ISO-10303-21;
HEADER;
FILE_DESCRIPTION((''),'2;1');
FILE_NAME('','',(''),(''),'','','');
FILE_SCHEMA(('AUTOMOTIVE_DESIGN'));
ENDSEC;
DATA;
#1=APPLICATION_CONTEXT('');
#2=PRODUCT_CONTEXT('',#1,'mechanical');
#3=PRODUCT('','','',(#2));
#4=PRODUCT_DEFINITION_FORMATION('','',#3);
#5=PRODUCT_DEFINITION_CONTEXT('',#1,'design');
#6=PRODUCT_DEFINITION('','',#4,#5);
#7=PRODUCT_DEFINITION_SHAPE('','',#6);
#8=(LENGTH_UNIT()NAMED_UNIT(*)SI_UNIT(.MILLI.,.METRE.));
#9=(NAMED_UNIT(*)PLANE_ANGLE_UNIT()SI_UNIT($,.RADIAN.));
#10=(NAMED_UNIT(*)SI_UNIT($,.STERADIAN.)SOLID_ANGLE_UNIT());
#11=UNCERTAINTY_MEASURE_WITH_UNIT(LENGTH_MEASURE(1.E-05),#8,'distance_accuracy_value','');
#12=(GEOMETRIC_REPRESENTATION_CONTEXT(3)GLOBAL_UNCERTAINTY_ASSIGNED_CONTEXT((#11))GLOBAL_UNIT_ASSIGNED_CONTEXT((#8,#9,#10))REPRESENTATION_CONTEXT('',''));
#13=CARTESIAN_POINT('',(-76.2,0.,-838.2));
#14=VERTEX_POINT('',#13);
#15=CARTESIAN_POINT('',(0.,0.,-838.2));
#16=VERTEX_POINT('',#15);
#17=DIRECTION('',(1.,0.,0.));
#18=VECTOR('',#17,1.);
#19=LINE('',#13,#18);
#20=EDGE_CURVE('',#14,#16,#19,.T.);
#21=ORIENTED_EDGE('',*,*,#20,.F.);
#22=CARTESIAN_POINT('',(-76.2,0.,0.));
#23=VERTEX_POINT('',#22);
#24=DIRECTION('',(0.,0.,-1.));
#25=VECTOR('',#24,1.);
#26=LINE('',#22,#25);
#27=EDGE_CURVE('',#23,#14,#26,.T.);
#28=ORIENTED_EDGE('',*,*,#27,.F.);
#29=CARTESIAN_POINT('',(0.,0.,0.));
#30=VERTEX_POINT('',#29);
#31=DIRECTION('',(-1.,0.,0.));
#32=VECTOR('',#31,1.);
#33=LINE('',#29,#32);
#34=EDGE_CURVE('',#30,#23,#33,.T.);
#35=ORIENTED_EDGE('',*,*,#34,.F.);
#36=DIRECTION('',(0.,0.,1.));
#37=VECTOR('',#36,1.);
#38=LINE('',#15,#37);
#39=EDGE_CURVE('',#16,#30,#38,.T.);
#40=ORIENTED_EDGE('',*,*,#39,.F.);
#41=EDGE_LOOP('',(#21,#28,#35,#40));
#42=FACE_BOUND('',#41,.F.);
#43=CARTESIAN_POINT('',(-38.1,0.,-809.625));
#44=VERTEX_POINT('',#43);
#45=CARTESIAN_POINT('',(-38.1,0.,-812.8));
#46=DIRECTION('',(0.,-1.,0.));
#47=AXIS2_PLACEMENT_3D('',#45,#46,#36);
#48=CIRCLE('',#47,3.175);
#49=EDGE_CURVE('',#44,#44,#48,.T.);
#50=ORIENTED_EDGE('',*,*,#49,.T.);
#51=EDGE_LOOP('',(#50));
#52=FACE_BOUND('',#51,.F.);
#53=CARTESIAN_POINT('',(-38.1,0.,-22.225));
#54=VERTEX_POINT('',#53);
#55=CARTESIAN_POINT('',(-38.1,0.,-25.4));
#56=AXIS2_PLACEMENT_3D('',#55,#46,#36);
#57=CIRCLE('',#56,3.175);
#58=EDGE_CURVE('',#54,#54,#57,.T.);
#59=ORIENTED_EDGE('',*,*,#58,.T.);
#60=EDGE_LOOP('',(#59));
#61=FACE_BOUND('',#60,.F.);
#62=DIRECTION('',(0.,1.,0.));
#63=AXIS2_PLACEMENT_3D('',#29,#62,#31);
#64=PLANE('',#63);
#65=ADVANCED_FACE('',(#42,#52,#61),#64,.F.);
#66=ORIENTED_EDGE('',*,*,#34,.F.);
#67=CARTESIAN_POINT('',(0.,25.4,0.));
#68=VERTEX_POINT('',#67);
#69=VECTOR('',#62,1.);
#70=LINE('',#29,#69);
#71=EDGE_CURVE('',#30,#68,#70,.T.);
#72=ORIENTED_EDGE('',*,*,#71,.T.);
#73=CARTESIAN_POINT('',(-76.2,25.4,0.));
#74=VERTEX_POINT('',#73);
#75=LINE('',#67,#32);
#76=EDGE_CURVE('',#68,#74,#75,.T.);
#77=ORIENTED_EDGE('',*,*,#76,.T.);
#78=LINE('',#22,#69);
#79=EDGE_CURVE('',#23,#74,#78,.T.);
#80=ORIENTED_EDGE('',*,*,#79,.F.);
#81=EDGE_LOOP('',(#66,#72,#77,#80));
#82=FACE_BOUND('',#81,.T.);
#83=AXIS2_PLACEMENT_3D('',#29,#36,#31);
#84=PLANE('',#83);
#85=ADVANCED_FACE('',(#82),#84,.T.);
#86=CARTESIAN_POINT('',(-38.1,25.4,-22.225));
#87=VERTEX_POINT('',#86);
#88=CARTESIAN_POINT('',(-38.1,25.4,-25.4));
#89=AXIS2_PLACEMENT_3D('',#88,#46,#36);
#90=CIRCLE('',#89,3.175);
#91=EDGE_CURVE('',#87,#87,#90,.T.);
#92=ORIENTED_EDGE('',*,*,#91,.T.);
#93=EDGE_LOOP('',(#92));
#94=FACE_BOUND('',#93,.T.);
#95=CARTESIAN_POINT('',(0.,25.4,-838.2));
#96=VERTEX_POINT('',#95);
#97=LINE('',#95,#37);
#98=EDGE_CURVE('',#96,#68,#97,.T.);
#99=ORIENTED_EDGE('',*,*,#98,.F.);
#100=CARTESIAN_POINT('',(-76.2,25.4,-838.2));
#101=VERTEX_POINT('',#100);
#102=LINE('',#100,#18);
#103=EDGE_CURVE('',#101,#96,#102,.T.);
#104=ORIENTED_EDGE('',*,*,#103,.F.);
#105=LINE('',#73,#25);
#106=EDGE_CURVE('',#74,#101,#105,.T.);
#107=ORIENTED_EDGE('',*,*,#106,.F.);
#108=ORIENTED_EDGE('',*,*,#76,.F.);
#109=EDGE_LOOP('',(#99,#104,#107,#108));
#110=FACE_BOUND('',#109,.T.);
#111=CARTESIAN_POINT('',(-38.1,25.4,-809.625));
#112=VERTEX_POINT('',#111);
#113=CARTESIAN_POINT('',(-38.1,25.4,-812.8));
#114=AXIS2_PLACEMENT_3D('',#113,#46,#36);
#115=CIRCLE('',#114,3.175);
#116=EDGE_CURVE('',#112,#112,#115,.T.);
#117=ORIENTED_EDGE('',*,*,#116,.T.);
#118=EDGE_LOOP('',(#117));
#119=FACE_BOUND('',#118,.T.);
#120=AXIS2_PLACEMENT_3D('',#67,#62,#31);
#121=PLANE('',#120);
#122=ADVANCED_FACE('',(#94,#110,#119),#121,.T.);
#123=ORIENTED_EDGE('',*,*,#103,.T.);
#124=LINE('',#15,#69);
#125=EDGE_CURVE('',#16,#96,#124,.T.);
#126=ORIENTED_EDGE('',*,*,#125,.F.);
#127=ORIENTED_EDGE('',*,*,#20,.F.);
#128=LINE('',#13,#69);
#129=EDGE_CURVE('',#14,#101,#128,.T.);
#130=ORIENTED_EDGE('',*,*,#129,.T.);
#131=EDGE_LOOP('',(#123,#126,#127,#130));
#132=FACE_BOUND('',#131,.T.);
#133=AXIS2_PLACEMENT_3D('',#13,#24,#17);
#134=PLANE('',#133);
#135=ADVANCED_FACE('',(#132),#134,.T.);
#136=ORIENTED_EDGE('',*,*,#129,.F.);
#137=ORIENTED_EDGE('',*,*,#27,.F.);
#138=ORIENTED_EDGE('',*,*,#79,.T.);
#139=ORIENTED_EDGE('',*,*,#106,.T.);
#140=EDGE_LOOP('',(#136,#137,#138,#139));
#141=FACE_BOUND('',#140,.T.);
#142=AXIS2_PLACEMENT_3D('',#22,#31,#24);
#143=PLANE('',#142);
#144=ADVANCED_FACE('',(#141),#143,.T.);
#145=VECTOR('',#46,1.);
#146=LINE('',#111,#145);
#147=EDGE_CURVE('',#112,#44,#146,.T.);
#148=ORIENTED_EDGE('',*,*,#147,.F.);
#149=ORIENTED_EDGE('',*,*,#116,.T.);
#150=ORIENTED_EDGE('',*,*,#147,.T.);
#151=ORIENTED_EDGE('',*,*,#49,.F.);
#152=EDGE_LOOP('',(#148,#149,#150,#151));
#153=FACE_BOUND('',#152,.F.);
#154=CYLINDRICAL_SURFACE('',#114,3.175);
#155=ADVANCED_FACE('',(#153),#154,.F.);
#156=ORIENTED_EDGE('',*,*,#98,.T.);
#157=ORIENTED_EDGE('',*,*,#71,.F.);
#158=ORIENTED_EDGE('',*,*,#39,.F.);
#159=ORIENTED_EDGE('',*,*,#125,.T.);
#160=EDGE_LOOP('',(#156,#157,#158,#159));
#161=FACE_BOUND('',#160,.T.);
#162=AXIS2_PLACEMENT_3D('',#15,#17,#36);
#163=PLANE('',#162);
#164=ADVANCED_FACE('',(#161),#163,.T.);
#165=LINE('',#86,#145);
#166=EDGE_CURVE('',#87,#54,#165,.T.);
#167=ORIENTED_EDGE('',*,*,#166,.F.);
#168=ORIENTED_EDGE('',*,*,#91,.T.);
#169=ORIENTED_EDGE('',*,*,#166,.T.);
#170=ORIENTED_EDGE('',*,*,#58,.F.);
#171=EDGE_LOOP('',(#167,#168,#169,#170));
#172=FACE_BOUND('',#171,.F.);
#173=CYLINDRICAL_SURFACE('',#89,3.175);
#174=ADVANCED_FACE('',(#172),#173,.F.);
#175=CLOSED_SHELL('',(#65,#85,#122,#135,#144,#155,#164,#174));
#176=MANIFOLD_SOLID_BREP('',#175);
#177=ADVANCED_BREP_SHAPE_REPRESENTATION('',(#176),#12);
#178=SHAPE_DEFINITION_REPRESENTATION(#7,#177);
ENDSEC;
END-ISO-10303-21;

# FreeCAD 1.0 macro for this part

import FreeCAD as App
import Part
import Sketcher
from FreeCAD import Vector
Q = App.Units.Quantity


def add_polygon(sketch, points):
    """Adds a closed chain of lines whose ends are joined by coincident constraints."""
    first, n = sketch.GeometryCount, len(points)
    for a, b in zip(points, points[1:] + points[:1]):
        sketch.addGeometry(Part.LineSegment(App.Vector(*a, 0), App.Vector(*b, 0)), False)
    for i in range(n):
        sketch.addConstraint(Sketcher.Constraint("Coincident", first + i, 2, first + (i + 1) % n, 1))

doc = App.newDocument("Part")
body = doc.addObject("PartDesign::Body", "Body")

# Sketch on XZ plane
sketch1 = body.newObject("Sketcher::SketchObject", "Sketch")
sketch1.AttachmentSupport = (doc.getObject("XZ_Plane"), [""])
sketch1.MapMode = "FlatFace"
add_polygon(sketch1, [(-76.2, 0), (0, 0), (0, -838.2), (-76.2, -838.2)])  # lines 0-3
sketch1.addConstraint([
    Sketcher.Constraint("Horizontal", 0),
    Sketcher.Constraint("Vertical", 1),
    Sketcher.Constraint("Horizontal", 2),
    Sketcher.Constraint("Vertical", 3),
    Sketcher.Constraint("Coincident", 0, 2, -1, 1),
    Sketcher.Constraint("DistanceX", 0, 1, 0, 2, Q("3 in")),
    Sketcher.Constraint("DistanceY", 1, 2, 1, 1, Q("33 in")),
])
pad1 = body.newObject("PartDesign::Pad", "Pad")
pad1.Profile = sketch1
pad1.Length = Q("1 in")
pad1.Reversed = True

# Sketch on XZ plane
sketch2 = body.newObject("Sketcher::SketchObject", "Sketch001")
sketch2.AttachmentSupport = (doc.getObject("XZ_Plane"), [""])
sketch2.MapMode = "FlatFace"
sketch2.AttachmentOffset = App.Placement(Vector(0, 0, -1 * 25.4), App.Rotation())
sketch2.addGeometry([
    Part.Circle(Vector(-38.1, -812.8, 0), Vector(0, 0, 1), 3.175),
    Part.Circle(Vector(-38.1, -25.4, 0), Vector(0, 0, 1), 3.175),
], False)
sketch2.addConstraint([
    Sketcher.Constraint("Equal", 0, 1),
    Sketcher.Constraint("Vertical", 0, 3, 1, 3),
    Sketcher.Constraint("Diameter", 0, Q("0.25 in")),
    Sketcher.Constraint("DistanceY", 0, 3, -1, 1, Q("32 in")),
    Sketcher.Constraint("DistanceY", 1, 3, -1, 1, Q("1 in")),
    Sketcher.Constraint("DistanceX", 0, 3, -1, 1, Q("1.5 in")),
])
doc.recompute()
hole = body.newObject("PartDesign::Hole", "Hole")
hole.Profile = sketch2
hole.ThreadType = "None"
hole.Diameter = Q("0.25 in")
hole.DepthType = "ThroughAll"
hole.Reversed = True

doc.recompute()
